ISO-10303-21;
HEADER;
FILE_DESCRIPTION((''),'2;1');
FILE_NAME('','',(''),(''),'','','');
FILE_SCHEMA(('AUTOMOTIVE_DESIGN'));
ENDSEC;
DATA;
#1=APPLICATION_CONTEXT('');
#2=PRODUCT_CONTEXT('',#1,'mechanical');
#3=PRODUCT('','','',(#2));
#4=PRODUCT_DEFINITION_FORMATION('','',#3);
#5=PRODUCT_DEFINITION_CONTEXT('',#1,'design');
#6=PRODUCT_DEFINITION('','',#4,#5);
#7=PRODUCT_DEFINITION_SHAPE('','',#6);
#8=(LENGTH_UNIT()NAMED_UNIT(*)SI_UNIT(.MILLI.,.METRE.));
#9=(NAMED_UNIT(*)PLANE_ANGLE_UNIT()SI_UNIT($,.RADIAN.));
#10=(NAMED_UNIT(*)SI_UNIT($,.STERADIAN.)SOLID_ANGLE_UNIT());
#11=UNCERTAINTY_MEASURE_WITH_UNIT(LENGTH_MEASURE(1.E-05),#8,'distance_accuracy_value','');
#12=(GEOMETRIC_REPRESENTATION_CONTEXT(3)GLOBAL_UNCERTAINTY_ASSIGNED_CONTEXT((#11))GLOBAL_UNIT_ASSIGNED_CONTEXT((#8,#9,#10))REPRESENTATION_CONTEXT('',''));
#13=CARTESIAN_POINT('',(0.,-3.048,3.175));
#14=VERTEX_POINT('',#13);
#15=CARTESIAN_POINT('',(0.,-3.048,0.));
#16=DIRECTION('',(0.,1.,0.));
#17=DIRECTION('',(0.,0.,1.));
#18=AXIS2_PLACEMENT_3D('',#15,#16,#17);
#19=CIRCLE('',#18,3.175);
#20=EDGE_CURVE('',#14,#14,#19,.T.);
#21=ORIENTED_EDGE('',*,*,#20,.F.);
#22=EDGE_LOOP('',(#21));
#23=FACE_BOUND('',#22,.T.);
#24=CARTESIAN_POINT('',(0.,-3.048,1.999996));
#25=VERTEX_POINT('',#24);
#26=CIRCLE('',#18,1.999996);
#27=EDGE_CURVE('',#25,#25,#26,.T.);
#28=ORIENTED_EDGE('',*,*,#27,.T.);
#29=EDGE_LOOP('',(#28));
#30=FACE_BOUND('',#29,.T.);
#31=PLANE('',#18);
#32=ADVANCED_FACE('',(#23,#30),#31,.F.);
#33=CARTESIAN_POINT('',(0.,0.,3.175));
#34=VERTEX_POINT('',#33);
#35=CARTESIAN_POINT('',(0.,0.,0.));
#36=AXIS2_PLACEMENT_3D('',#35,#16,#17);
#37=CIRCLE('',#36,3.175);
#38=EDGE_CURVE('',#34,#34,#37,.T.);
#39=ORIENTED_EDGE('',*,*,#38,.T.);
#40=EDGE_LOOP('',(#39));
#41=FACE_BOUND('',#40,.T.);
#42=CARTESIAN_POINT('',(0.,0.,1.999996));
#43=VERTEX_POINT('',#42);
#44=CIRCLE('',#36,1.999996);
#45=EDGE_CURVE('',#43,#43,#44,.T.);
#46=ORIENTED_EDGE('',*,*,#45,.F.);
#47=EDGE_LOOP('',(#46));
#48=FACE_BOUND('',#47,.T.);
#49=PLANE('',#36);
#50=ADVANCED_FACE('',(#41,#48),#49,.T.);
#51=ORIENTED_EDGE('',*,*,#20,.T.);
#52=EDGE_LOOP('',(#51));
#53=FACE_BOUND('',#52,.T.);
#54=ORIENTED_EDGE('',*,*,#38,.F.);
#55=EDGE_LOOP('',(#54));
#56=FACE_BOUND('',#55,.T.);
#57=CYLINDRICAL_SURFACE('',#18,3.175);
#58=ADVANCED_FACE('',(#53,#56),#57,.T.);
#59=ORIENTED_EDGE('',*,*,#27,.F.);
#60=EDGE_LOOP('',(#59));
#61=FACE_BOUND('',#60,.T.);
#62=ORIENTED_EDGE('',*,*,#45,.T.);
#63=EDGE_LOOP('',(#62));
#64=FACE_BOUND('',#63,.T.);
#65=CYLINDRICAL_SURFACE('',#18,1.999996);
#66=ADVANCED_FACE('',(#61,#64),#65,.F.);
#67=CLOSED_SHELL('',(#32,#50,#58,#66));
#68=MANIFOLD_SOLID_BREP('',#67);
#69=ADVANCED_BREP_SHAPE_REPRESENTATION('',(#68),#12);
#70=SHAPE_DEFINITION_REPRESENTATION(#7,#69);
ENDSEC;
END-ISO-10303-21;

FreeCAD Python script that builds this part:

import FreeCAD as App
import Part
import Sketcher
Q = App.Units.Quantity

doc = App.newDocument("Part")
body = doc.addObject("PartDesign::Body", "Body")

# Sketch on XZ plane
sketch1 = body.newObject("Sketcher::SketchObject", "Sketch")
sketch1.AttachmentSupport = (doc.getObject("XZ_Plane"), [""])
sketch1.MapMode = "FlatFace"
sketch1.addGeometry([
    Part.Circle(App.Vector(0, 0, 0), App.Vector(0, 0, 1), 3.2),
    Part.Circle(App.Vector(0, 0, 0), App.Vector(0, 0, 1), 2),
], False)
sketch1.addConstraint([
    Sketcher.Constraint("Coincident", 0, 3, -1, 1),
    Sketcher.Constraint("Coincident", 1, 3, -1, 1),
    Sketcher.Constraint("Diameter", 0, Q("0.25 in")),
    Sketcher.Constraint("Diameter", 1, 3.999992),
])
pad1 = body.newObject("PartDesign::Pad", "Pad")
pad1.Profile = sketch1
pad1.Length = Q("0.12 in")

doc.recompute()
